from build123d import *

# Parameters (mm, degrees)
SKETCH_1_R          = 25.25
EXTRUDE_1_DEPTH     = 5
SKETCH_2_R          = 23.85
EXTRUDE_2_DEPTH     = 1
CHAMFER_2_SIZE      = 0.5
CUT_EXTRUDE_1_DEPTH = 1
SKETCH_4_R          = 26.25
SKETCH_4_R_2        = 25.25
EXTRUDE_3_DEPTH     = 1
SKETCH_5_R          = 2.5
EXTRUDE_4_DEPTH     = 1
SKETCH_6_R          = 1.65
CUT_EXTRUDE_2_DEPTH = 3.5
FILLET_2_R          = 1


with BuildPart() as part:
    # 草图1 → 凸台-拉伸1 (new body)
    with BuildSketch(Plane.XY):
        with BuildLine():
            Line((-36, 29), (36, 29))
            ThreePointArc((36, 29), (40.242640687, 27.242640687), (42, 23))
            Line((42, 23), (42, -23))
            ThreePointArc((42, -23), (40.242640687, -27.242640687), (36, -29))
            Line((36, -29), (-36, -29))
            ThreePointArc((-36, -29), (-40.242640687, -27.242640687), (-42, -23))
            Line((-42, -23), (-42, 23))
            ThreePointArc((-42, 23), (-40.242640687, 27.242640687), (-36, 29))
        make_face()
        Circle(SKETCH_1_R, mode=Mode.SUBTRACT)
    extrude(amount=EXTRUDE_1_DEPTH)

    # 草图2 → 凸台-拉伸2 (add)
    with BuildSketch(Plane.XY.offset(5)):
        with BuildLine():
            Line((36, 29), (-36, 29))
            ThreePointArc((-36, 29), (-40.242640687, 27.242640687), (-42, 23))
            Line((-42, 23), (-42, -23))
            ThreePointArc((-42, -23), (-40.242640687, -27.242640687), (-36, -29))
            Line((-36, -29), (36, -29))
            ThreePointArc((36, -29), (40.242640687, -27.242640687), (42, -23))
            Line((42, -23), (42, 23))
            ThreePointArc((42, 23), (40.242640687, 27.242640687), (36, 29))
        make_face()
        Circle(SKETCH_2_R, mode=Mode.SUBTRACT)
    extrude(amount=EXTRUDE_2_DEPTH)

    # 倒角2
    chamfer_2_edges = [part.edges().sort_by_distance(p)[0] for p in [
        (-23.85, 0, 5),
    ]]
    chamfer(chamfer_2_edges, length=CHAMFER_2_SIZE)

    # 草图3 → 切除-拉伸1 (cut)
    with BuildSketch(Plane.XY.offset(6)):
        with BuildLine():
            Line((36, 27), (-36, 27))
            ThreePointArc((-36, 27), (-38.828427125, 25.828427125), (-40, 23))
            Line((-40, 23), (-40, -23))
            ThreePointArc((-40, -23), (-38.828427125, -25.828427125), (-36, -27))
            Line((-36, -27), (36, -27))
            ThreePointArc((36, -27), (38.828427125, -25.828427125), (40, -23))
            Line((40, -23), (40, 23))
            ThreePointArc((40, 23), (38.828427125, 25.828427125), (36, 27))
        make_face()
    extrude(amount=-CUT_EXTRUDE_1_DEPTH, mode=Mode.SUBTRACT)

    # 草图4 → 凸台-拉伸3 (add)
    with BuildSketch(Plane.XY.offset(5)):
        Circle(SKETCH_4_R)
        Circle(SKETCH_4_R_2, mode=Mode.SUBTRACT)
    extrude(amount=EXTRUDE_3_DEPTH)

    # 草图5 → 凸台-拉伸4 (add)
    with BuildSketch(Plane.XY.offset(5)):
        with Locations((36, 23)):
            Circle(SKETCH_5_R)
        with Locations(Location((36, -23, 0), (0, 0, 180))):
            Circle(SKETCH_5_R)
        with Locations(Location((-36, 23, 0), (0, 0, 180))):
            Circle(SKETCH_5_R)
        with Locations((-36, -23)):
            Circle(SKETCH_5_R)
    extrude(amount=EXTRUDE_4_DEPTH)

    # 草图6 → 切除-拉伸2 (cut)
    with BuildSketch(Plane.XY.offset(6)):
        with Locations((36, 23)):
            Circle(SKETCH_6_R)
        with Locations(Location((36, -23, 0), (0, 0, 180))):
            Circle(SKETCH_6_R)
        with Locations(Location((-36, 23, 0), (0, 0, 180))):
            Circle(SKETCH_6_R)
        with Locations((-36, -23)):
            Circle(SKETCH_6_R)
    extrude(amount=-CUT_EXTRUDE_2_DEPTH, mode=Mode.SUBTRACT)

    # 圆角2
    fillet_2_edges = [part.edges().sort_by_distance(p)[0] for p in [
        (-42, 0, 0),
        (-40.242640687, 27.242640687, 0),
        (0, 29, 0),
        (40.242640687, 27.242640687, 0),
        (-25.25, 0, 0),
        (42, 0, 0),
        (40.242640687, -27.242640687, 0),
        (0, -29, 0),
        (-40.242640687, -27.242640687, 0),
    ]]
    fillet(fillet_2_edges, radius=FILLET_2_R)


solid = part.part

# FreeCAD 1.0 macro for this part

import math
import FreeCAD as App
import Part
import Sketcher
from FreeCAD import Vector


def edges_at(feature, points):
    """Names of the edges that pass closest to the given points."""
    edges = feature.Shape.Edges
    near = lambda p: min(range(len(edges)), key=lambda i: edges[i].distToShape(Part.Vertex(*p))[0])
    return sorted({f"Edge{near(p) + 1}" for p in points})

doc = App.newDocument("Part")
body = doc.addObject("PartDesign::Body", "Body")

sketch1 = doc.addObject("Sketcher::SketchObject", "Sketch")
body.addObject(sketch1)
sketch1.AttachmentSupport = (doc.XY_Plane, [""])
sketch1.MapMode = "FlatFace"
sketch1.addGeometry([
    Part.LineSegment(Vector(36, 29, 0), Vector(-36, 29, 0)),
    Part.ArcOfCircle(Part.Circle(Vector(-36, 23, 0), Vector(0, 0, 1), 6), math.radians(90), math.radians(180)),
    Part.LineSegment(Vector(-42, 23, 0), Vector(-42, -23, 0)),
    Part.ArcOfCircle(Part.Circle(Vector(-36, -23, 0), Vector(0, 0, 1), 6), math.radians(180), math.radians(270)),
    Part.LineSegment(Vector(-36, -29, 0), Vector(36, -29, 0)),
    Part.ArcOfCircle(Part.Circle(Vector(36, -23, 0), Vector(0, 0, 1), 6), math.radians(-90), math.radians(0)),
    Part.LineSegment(Vector(42, -23, 0), Vector(42, 23, 0)),
    Part.ArcOfCircle(Part.Circle(Vector(36, 23, 0), Vector(0, 0, 1), 6), math.radians(0), math.radians(90)),
    Part.Circle(Vector(0, 0, 0), Vector(0, 0, 1), 25),
], False)
sketch1.addConstraint([
    Sketcher.Constraint("Tangent", 0, 2, 1, 1),
    Sketcher.Constraint("Tangent", 1, 2, 2, 1),
    Sketcher.Constraint("Tangent", 2, 2, 3, 1),
    Sketcher.Constraint("Tangent", 3, 2, 4, 1),
    Sketcher.Constraint("Tangent", 4, 2, 5, 1),
    Sketcher.Constraint("Tangent", 5, 2, 6, 1),
    Sketcher.Constraint("Tangent", 6, 2, 7, 1),
    Sketcher.Constraint("Tangent", 7, 2, 0, 1),
    Sketcher.Constraint("Horizontal", 0),
    Sketcher.Constraint("Vertical", 2),
    Sketcher.Constraint("Horizontal", 4),
    Sketcher.Constraint("Vertical", 6),
    Sketcher.Constraint("Coincident", 8, 3, -1, 1),
    Sketcher.Constraint("Equal", 1, 3),
    Sketcher.Constraint("Equal", 3, 5),
    Sketcher.Constraint("Equal", 5, 7),
    Sketcher.Constraint("Symmetric", 1, 3, 5, 3, -1, 1),
    Sketcher.Constraint("Radius", 1, 6.0),
    Sketcher.Constraint("Diameter", 8, 50.5),
    Sketcher.Constraint("DistanceX", 0, 2, 0, 1, 72.0),
    Sketcher.Constraint("DistanceY", 2, 2, 2, 1, 46.0),
])
pad1 = doc.addObject("PartDesign::Pad", "Pad")
body.addObject(pad1)
pad1.Profile = sketch1
pad1.Length = 5

sketch2 = doc.addObject("Sketcher::SketchObject", "Sketch001")
body.addObject(sketch2)
sketch2.AttachmentSupport = (doc.XY_Plane, [""])
sketch2.MapMode = "FlatFace"
sketch2.AttachmentOffset = App.Placement(Vector(0, 0, 5), App.Rotation())
sketch2.addGeometry([
    Part.LineSegment(Vector(36, 29, 0), Vector(-36, 29, 0)),
    Part.ArcOfCircle(Part.Circle(Vector(-36, 23, 0), Vector(0, 0, 1), 6), math.radians(90), math.radians(180)),
    Part.LineSegment(Vector(-42, 23, 0), Vector(-42, -23, 0)),
    Part.ArcOfCircle(Part.Circle(Vector(-36, -23, 0), Vector(0, 0, 1), 6), math.radians(180), math.radians(270)),
    Part.LineSegment(Vector(-36, -29, 0), Vector(36, -29, 0)),
    Part.ArcOfCircle(Part.Circle(Vector(36, -23, 0), Vector(0, 0, 1), 6), math.radians(-90), math.radians(0)),
    Part.LineSegment(Vector(42, -23, 0), Vector(42, 23, 0)),
    Part.ArcOfCircle(Part.Circle(Vector(36, 23, 0), Vector(0, 0, 1), 6), math.radians(0), math.radians(90)),
    Part.Circle(Vector(0, 0, 0), Vector(0, 0, 1), 24),
], False)
sketch2.addConstraint([
    Sketcher.Constraint("Tangent", 0, 2, 1, 1),
    Sketcher.Constraint("Tangent", 1, 2, 2, 1),
    Sketcher.Constraint("Tangent", 2, 2, 3, 1),
    Sketcher.Constraint("Tangent", 3, 2, 4, 1),
    Sketcher.Constraint("Tangent", 4, 2, 5, 1),
    Sketcher.Constraint("Tangent", 5, 2, 6, 1),
    Sketcher.Constraint("Tangent", 6, 2, 7, 1),
    Sketcher.Constraint("Tangent", 7, 2, 0, 1),
    Sketcher.Constraint("Horizontal", 0),
    Sketcher.Constraint("Vertical", 2),
    Sketcher.Constraint("Horizontal", 4),
    Sketcher.Constraint("Vertical", 6),
    Sketcher.Constraint("Coincident", 8, 3, -1, 1),
    Sketcher.Constraint("Equal", 1, 3),
    Sketcher.Constraint("Equal", 3, 5),
    Sketcher.Constraint("Equal", 5, 7),
    Sketcher.Constraint("Symmetric", 1, 3, 5, 3, -1, 1),
    Sketcher.Constraint("Radius", 1, 6.0),
    Sketcher.Constraint("Diameter", 8, 47.7),
    Sketcher.Constraint("DistanceX", 0, 2, 0, 1, 72.0),
    Sketcher.Constraint("DistanceY", 2, 2, 2, 1, 46.0),
])
pad2 = doc.addObject("PartDesign::Pad", "Pad001")
body.addObject(pad2)
pad2.Profile = sketch2
pad2.Length = 1
doc.recompute()

chamfer = doc.addObject("PartDesign::Chamfer", "Chamfer")
body.addObject(chamfer)
chamfer.Base = (pad2, edges_at(pad2, [(-23.85, 0, 5)]))
chamfer.Size = 0.5

sketch3 = doc.addObject("Sketcher::SketchObject", "Sketch002")
body.addObject(sketch3)
sketch3.AttachmentSupport = (doc.XY_Plane, [""])
sketch3.MapMode = "FlatFace"
sketch3.AttachmentOffset = App.Placement(Vector(0, 0, 6), App.Rotation())
sketch3.addGeometry([
    Part.LineSegment(Vector(36, 27, 0), Vector(-36, 27, 0)),
    Part.ArcOfCircle(Part.Circle(Vector(-36, 23, 0), Vector(0, 0, 1), 4), math.radians(90), math.radians(180)),
    Part.LineSegment(Vector(-40, 23, 0), Vector(-40, -23, 0)),
    Part.ArcOfCircle(Part.Circle(Vector(-36, -23, 0), Vector(0, 0, 1), 4), math.radians(180), math.radians(270)),
    Part.LineSegment(Vector(-36, -27, 0), Vector(36, -27, 0)),
    Part.ArcOfCircle(Part.Circle(Vector(36, -23, 0), Vector(0, 0, 1), 4), math.radians(-90), math.radians(0)),
    Part.LineSegment(Vector(40, -23, 0), Vector(40, 23, 0)),
    Part.ArcOfCircle(Part.Circle(Vector(36, 23, 0), Vector(0, 0, 1), 4), math.radians(0), math.radians(90)),
], False)
sketch3.addConstraint([
    Sketcher.Constraint("Tangent", 0, 2, 1, 1),
    Sketcher.Constraint("Tangent", 1, 2, 2, 1),
    Sketcher.Constraint("Tangent", 2, 2, 3, 1),
    Sketcher.Constraint("Tangent", 3, 2, 4, 1),
    Sketcher.Constraint("Tangent", 4, 2, 5, 1),
    Sketcher.Constraint("Tangent", 5, 2, 6, 1),
    Sketcher.Constraint("Tangent", 6, 2, 7, 1),
    Sketcher.Constraint("Tangent", 7, 2, 0, 1),
    Sketcher.Constraint("Horizontal", 0),
    Sketcher.Constraint("Vertical", 2),
    Sketcher.Constraint("Horizontal", 4),
    Sketcher.Constraint("Vertical", 6),
    Sketcher.Constraint("Equal", 1, 3),
    Sketcher.Constraint("Equal", 3, 5),
    Sketcher.Constraint("Equal", 5, 7),
    Sketcher.Constraint("Symmetric", 1, 3, 5, 3, -1, 1),
    Sketcher.Constraint("Radius", 1, 4.0),
    Sketcher.Constraint("DistanceX", 0, 2, 0, 1, 72.0),
    Sketcher.Constraint("DistanceY", 2, 2, 2, 1, 46.0),
])
pocket1 = doc.addObject("PartDesign::Pocket", "Pocket")
body.addObject(pocket1)
pocket1.Profile = sketch3
pocket1.Length = 1

sketch4 = doc.addObject("Sketcher::SketchObject", "Sketch003")
body.addObject(sketch4)
sketch4.AttachmentSupport = (doc.XY_Plane, [""])
sketch4.MapMode = "FlatFace"
sketch4.AttachmentOffset = App.Placement(Vector(0, 0, 5), App.Rotation())
sketch4.addGeometry([
    Part.Circle(Vector(0, 0, 0), Vector(0, 0, 1), 26),
    Part.Circle(Vector(0, 0, 0), Vector(0, 0, 1), 25),
], False)
sketch4.addConstraint([
    Sketcher.Constraint("Coincident", 0, 3, -1, 1),
    Sketcher.Constraint("Coincident", 1, 3, -1, 1),
    Sketcher.Constraint("Diameter", 0, 52.5),
    Sketcher.Constraint("Diameter", 1, 50.5),
])
pad3 = doc.addObject("PartDesign::Pad", "Pad002")
body.addObject(pad3)
pad3.Profile = sketch4
pad3.Length = 1

sketch5 = doc.addObject("Sketcher::SketchObject", "Sketch004")
body.addObject(sketch5)
sketch5.AttachmentSupport = (doc.XY_Plane, [""])
sketch5.MapMode = "FlatFace"
sketch5.AttachmentOffset = App.Placement(Vector(0, 0, 5), App.Rotation())
sketch5.addGeometry([
    Part.Circle(Vector(36, 23, 0), Vector(0, 0, 1), 2.5),
    Part.Circle(Vector(36, -23, 0), Vector(0, 0, 1), 2.5),
    Part.Circle(Vector(-36, 23, 0), Vector(0, 0, 1), 2.5),
    Part.Circle(Vector(-36, -23, 0), Vector(0, 0, 1), 2.5),
], False)
sketch5.addConstraint([
    Sketcher.Constraint("Equal", 0, 1),
    Sketcher.Constraint("Equal", 1, 2),
    Sketcher.Constraint("Equal", 2, 3),
    Sketcher.Constraint("Symmetric", 1, 3, 2, 3, -1, 1),
    Sketcher.Constraint("Symmetric", 0, 3, 3, 3, -1, 1),
    Sketcher.Constraint("Symmetric", 0, 3, 2, 3, -2),
    Sketcher.Constraint("Diameter", 0, 5.0),
    Sketcher.Constraint("DistanceX", -1, 1, 0, 3, 36.0),
    Sketcher.Constraint("DistanceY", -1, 1, 0, 3, 23.0),
])
pad4 = doc.addObject("PartDesign::Pad", "Pad003")
body.addObject(pad4)
pad4.Profile = sketch5
pad4.Length = 1

sketch6 = doc.addObject("Sketcher::SketchObject", "Sketch005")
body.addObject(sketch6)
sketch6.AttachmentSupport = (doc.XY_Plane, [""])
sketch6.MapMode = "FlatFace"
sketch6.AttachmentOffset = App.Placement(Vector(0, 0, 6), App.Rotation())
sketch6.addGeometry([
    Part.Circle(Vector(36, 23, 0), Vector(0, 0, 1), 1.6),
    Part.Circle(Vector(36, -23, 0), Vector(0, 0, 1), 1.6),
    Part.Circle(Vector(-36, 23, 0), Vector(0, 0, 1), 1.6),
    Part.Circle(Vector(-36, -23, 0), Vector(0, 0, 1), 1.6),
], False)
sketch6.addConstraint([
    Sketcher.Constraint("Equal", 0, 1),
    Sketcher.Constraint("Equal", 1, 2),
    Sketcher.Constraint("Equal", 2, 3),
    Sketcher.Constraint("Symmetric", 1, 3, 2, 3, -1, 1),
    Sketcher.Constraint("Symmetric", 0, 3, 3, 3, -1, 1),
    Sketcher.Constraint("Symmetric", 0, 3, 2, 3, -2),
    Sketcher.Constraint("Diameter", 0, 3.3),
    Sketcher.Constraint("DistanceX", -1, 1, 0, 3, 36.0),
    Sketcher.Constraint("DistanceY", -1, 1, 0, 3, 23.0),
])
pocket2 = doc.addObject("PartDesign::Pocket", "Pocket001")
body.addObject(pocket2)
pocket2.Profile = sketch6
pocket2.Length = 3.5
doc.recompute()

fillet = doc.addObject("PartDesign::Fillet", "Fillet")
body.addObject(fillet)
fillet.Base = (pocket2, edges_at(pocket2, [
    (-42, 0, 0),
    (-40.243, 27.243, 0),
    (0, 29, 0),
    (40.243, 27.243, 0),
    (-25.25, 0, 0),
    (42, 0, 0),
    (40.243, -27.243, 0),
    (0, -29, 0),
    (-40.243, -27.243, 0),
]))
fillet.Radius = 1

doc.recompute()
